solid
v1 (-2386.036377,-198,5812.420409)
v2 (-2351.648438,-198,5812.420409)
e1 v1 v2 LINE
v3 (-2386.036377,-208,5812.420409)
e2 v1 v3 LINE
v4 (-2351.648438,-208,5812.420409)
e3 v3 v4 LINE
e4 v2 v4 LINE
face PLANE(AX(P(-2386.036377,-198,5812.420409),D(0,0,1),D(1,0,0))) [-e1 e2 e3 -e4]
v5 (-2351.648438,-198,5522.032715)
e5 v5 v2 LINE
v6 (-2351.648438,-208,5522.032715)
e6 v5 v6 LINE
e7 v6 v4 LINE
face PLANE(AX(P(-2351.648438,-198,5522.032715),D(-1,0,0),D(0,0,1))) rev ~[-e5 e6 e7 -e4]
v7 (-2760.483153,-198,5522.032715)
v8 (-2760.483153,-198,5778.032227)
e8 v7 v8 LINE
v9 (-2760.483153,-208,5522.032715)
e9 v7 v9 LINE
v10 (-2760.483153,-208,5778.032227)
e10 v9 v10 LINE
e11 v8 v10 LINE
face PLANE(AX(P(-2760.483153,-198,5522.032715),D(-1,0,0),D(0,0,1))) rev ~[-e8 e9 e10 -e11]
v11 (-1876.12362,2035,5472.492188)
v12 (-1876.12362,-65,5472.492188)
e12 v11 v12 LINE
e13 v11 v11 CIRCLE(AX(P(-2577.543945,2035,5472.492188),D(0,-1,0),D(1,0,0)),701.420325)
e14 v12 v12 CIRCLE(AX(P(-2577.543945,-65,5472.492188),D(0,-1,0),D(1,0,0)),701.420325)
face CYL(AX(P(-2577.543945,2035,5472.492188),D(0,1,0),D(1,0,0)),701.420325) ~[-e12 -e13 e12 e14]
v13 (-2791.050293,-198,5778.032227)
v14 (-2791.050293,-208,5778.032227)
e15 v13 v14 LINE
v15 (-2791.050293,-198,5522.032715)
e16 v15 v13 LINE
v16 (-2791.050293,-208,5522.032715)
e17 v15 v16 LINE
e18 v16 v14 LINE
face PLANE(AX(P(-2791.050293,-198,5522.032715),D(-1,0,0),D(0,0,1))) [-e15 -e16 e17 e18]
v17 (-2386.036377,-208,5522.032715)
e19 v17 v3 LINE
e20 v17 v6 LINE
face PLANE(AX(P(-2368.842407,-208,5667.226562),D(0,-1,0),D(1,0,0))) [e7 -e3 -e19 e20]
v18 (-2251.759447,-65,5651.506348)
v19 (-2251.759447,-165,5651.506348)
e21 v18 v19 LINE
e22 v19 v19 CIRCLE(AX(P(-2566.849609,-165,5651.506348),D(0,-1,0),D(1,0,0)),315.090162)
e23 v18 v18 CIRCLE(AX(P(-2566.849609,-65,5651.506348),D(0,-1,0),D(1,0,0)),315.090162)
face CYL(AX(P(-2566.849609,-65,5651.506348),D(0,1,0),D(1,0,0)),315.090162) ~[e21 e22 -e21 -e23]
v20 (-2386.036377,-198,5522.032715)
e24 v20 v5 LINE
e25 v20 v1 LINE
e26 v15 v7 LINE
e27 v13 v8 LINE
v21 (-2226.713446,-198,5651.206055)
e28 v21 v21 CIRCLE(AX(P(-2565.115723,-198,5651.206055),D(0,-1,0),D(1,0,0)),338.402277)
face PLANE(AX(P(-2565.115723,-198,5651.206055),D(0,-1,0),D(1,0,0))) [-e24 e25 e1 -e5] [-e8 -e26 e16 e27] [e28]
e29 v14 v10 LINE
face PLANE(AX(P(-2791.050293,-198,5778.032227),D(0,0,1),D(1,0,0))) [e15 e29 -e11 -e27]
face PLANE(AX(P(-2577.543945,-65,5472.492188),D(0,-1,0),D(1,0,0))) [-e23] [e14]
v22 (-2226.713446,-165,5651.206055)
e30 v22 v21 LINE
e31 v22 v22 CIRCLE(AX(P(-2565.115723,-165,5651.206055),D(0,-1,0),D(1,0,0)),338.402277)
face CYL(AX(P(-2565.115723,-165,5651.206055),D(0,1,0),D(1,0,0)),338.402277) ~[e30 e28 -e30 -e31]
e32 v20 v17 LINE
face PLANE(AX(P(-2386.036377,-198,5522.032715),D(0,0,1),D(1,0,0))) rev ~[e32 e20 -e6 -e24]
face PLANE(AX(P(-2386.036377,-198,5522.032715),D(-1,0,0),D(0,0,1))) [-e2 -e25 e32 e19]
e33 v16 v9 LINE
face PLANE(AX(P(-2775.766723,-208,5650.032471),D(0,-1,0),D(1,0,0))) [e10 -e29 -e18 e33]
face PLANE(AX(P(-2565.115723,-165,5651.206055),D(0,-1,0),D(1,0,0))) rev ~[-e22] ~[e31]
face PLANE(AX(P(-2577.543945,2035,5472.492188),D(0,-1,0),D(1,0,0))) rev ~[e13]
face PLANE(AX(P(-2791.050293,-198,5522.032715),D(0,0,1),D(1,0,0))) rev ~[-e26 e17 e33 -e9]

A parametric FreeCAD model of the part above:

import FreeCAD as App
import Part
import Sketcher
from FreeCAD import Vector

doc = App.newDocument("Part")
body = doc.addObject("PartDesign::Body", "Body")

sketch1 = body.newObject("Sketcher::SketchObject", "Sketch")
sketch1.AttachmentSupport = (doc.getObject("XZ_Plane"), [""])
sketch1.MapMode = "FlatFace"
sketch1.addGeometry(Part.Circle(Vector(-2577.543945, 5472.492188, 0), Vector(0, 0, 1), 701.420325), False)
sketch1.addConstraint([
    Sketcher.Constraint("Diameter", 0, 1402.84065),
    Sketcher.Constraint("DistanceY", -1, 1, 0, 3, 5472.492188),
    Sketcher.Constraint("DistanceX", 0, 3, -1, 1, 2577.543945),
])
pad1 = body.newObject("PartDesign::Pad", "Pad")
pad1.Profile = sketch1
pad1.Length = 2100

sketch2 = body.newObject("Sketcher::SketchObject", "Sketch001")
sketch2.AttachmentSupport = (doc.getObject("XZ_Plane"), [""])
sketch2.MapMode = "FlatFace"
sketch2.AttachmentOffset = App.Placement(Vector(0, 0, 2100), App.Rotation())
sketch2.addGeometry(Part.Circle(Vector(-2566.849609, 5651.506348, 0), Vector(0, 0, 1), 315.090162), False)
sketch2.addConstraint([
    Sketcher.Constraint("Diameter", 0, 630.180324),
    Sketcher.Constraint("DistanceX", 0, 3, -1, 1, 2566.849609),
    Sketcher.Constraint("DistanceY", -1, 1, 0, 3, 5651.506348),
])
pad2 = body.newObject("PartDesign::Pad", "Pad001")
pad2.Profile = sketch2
pad2.Length = 100

sketch3 = body.newObject("Sketcher::SketchObject", "Sketch002")
sketch3.AttachmentSupport = (doc.getObject("XZ_Plane"), [""])
sketch3.MapMode = "FlatFace"
sketch3.AttachmentOffset = App.Placement(Vector(0, 0, 2200), App.Rotation())
sketch3.addGeometry(Part.Circle(Vector(-2565.115723, 5651.206055, 0), Vector(0, 0, 1), 338.402277), False)
sketch3.addConstraint([
    Sketcher.Constraint("Diameter", 0, 676.804554),
    Sketcher.Constraint("DistanceX", 0, 3, -1, 1, 2565.115723),
    Sketcher.Constraint("DistanceY", -1, 1, 0, 3, 5651.206055),
])
pad3 = body.newObject("PartDesign::Pad", "Pad002")
pad3.Profile = sketch3
pad3.Length = 33

sketch4 = body.newObject("Sketcher::SketchObject", "Sketch003")
sketch4.AttachmentSupport = (doc.getObject("XZ_Plane"), [""])
sketch4.MapMode = "FlatFace"
sketch4.AttachmentOffset = App.Placement(Vector(0, 0, 2233), App.Rotation())
sketch4.addGeometry([
    Part.LineSegment(Vector(-2791.050293, 5778.032227, 0), Vector(-2791.050293, 5522.032715, 0)),
    Part.LineSegment(Vector(-2791.050293, 5522.032715, 0), Vector(-2760.483153, 5522.032715, 0)),
    Part.LineSegment(Vector(-2760.483153, 5522.032715, 0), Vector(-2760.483153, 5778.032227, 0)),
    Part.LineSegment(Vector(-2760.483153, 5778.032227, 0), Vector(-2791.050293, 5778.032227, 0)),
    Part.LineSegment(Vector(-2386.036377, 5812.420409, 0), Vector(-2386.036377, 5522.032715, 0)),
    Part.LineSegment(Vector(-2386.036377, 5522.032715, 0), Vector(-2351.648438, 5522.032715, 0)),
    Part.LineSegment(Vector(-2351.648438, 5522.032715, 0), Vector(-2351.648438, 5812.420409, 0)),
    Part.LineSegment(Vector(-2351.648438, 5812.420409, 0), Vector(-2386.036377, 5812.420409, 0)),
], False)
sketch4.addConstraint([
    Sketcher.Constraint("Coincident", 0, 2, 1, 1),
    Sketcher.Constraint("Coincident", 1, 2, 2, 1),
    Sketcher.Constraint("Coincident", 2, 2, 3, 1),
    Sketcher.Constraint("Coincident", 3, 2, 0, 1),
    Sketcher.Constraint("Coincident", 4, 2, 5, 1),
    Sketcher.Constraint("Coincident", 5, 2, 6, 1),
    Sketcher.Constraint("Coincident", 6, 2, 7, 1),
    Sketcher.Constraint("Coincident", 7, 2, 4, 1),
    Sketcher.Constraint("Vertical", 0),
    Sketcher.Constraint("Horizontal", 1),
    Sketcher.Constraint("Vertical", 2),
    Sketcher.Constraint("Horizontal", 3),
    Sketcher.Constraint("Vertical", 4),
    Sketcher.Constraint("Horizontal", 5),
    Sketcher.Constraint("Vertical", 6),
    Sketcher.Constraint("Horizontal", 7),
    Sketcher.Constraint("Horizontal", 1, 2, 4, 2),
    Sketcher.Constraint("DistanceX", 1, 1, 1, 2, 30.567139),
    Sketcher.Constraint("DistanceX", 5, 1, 5, 2, 34.387939),
    Sketcher.Constraint("DistanceY", 0, 2, 0, 1, 255.999512),
    Sketcher.Constraint("DistanceY", 4, 2, 4, 1, 290.387695),
    Sketcher.Constraint("DistanceY", -1, 1, 6, 2, 5812.420409),
    Sketcher.Constraint("DistanceX", 0, 2, -1, 1, 2791.050293),
    Sketcher.Constraint("DistanceX", 4, 2, -1, 1, 2386.036377),
])
pad4 = body.newObject("PartDesign::Pad", "Pad003")
pad4.Profile = sketch4
pad4.Length = 10
body2 = doc.addObject("PartDesign::Body", "Body001")
doc.recompute()

body.Placement = App.Placement(Vector(0, 2035, 0), App.Rotation(Vector(0, 0, 1), 0))
boolean = body2.newObject("PartDesign::Boolean", "Boolean")
boolean.Type = "Fuse"
boolean.addObjects([body])

doc.recompute()
